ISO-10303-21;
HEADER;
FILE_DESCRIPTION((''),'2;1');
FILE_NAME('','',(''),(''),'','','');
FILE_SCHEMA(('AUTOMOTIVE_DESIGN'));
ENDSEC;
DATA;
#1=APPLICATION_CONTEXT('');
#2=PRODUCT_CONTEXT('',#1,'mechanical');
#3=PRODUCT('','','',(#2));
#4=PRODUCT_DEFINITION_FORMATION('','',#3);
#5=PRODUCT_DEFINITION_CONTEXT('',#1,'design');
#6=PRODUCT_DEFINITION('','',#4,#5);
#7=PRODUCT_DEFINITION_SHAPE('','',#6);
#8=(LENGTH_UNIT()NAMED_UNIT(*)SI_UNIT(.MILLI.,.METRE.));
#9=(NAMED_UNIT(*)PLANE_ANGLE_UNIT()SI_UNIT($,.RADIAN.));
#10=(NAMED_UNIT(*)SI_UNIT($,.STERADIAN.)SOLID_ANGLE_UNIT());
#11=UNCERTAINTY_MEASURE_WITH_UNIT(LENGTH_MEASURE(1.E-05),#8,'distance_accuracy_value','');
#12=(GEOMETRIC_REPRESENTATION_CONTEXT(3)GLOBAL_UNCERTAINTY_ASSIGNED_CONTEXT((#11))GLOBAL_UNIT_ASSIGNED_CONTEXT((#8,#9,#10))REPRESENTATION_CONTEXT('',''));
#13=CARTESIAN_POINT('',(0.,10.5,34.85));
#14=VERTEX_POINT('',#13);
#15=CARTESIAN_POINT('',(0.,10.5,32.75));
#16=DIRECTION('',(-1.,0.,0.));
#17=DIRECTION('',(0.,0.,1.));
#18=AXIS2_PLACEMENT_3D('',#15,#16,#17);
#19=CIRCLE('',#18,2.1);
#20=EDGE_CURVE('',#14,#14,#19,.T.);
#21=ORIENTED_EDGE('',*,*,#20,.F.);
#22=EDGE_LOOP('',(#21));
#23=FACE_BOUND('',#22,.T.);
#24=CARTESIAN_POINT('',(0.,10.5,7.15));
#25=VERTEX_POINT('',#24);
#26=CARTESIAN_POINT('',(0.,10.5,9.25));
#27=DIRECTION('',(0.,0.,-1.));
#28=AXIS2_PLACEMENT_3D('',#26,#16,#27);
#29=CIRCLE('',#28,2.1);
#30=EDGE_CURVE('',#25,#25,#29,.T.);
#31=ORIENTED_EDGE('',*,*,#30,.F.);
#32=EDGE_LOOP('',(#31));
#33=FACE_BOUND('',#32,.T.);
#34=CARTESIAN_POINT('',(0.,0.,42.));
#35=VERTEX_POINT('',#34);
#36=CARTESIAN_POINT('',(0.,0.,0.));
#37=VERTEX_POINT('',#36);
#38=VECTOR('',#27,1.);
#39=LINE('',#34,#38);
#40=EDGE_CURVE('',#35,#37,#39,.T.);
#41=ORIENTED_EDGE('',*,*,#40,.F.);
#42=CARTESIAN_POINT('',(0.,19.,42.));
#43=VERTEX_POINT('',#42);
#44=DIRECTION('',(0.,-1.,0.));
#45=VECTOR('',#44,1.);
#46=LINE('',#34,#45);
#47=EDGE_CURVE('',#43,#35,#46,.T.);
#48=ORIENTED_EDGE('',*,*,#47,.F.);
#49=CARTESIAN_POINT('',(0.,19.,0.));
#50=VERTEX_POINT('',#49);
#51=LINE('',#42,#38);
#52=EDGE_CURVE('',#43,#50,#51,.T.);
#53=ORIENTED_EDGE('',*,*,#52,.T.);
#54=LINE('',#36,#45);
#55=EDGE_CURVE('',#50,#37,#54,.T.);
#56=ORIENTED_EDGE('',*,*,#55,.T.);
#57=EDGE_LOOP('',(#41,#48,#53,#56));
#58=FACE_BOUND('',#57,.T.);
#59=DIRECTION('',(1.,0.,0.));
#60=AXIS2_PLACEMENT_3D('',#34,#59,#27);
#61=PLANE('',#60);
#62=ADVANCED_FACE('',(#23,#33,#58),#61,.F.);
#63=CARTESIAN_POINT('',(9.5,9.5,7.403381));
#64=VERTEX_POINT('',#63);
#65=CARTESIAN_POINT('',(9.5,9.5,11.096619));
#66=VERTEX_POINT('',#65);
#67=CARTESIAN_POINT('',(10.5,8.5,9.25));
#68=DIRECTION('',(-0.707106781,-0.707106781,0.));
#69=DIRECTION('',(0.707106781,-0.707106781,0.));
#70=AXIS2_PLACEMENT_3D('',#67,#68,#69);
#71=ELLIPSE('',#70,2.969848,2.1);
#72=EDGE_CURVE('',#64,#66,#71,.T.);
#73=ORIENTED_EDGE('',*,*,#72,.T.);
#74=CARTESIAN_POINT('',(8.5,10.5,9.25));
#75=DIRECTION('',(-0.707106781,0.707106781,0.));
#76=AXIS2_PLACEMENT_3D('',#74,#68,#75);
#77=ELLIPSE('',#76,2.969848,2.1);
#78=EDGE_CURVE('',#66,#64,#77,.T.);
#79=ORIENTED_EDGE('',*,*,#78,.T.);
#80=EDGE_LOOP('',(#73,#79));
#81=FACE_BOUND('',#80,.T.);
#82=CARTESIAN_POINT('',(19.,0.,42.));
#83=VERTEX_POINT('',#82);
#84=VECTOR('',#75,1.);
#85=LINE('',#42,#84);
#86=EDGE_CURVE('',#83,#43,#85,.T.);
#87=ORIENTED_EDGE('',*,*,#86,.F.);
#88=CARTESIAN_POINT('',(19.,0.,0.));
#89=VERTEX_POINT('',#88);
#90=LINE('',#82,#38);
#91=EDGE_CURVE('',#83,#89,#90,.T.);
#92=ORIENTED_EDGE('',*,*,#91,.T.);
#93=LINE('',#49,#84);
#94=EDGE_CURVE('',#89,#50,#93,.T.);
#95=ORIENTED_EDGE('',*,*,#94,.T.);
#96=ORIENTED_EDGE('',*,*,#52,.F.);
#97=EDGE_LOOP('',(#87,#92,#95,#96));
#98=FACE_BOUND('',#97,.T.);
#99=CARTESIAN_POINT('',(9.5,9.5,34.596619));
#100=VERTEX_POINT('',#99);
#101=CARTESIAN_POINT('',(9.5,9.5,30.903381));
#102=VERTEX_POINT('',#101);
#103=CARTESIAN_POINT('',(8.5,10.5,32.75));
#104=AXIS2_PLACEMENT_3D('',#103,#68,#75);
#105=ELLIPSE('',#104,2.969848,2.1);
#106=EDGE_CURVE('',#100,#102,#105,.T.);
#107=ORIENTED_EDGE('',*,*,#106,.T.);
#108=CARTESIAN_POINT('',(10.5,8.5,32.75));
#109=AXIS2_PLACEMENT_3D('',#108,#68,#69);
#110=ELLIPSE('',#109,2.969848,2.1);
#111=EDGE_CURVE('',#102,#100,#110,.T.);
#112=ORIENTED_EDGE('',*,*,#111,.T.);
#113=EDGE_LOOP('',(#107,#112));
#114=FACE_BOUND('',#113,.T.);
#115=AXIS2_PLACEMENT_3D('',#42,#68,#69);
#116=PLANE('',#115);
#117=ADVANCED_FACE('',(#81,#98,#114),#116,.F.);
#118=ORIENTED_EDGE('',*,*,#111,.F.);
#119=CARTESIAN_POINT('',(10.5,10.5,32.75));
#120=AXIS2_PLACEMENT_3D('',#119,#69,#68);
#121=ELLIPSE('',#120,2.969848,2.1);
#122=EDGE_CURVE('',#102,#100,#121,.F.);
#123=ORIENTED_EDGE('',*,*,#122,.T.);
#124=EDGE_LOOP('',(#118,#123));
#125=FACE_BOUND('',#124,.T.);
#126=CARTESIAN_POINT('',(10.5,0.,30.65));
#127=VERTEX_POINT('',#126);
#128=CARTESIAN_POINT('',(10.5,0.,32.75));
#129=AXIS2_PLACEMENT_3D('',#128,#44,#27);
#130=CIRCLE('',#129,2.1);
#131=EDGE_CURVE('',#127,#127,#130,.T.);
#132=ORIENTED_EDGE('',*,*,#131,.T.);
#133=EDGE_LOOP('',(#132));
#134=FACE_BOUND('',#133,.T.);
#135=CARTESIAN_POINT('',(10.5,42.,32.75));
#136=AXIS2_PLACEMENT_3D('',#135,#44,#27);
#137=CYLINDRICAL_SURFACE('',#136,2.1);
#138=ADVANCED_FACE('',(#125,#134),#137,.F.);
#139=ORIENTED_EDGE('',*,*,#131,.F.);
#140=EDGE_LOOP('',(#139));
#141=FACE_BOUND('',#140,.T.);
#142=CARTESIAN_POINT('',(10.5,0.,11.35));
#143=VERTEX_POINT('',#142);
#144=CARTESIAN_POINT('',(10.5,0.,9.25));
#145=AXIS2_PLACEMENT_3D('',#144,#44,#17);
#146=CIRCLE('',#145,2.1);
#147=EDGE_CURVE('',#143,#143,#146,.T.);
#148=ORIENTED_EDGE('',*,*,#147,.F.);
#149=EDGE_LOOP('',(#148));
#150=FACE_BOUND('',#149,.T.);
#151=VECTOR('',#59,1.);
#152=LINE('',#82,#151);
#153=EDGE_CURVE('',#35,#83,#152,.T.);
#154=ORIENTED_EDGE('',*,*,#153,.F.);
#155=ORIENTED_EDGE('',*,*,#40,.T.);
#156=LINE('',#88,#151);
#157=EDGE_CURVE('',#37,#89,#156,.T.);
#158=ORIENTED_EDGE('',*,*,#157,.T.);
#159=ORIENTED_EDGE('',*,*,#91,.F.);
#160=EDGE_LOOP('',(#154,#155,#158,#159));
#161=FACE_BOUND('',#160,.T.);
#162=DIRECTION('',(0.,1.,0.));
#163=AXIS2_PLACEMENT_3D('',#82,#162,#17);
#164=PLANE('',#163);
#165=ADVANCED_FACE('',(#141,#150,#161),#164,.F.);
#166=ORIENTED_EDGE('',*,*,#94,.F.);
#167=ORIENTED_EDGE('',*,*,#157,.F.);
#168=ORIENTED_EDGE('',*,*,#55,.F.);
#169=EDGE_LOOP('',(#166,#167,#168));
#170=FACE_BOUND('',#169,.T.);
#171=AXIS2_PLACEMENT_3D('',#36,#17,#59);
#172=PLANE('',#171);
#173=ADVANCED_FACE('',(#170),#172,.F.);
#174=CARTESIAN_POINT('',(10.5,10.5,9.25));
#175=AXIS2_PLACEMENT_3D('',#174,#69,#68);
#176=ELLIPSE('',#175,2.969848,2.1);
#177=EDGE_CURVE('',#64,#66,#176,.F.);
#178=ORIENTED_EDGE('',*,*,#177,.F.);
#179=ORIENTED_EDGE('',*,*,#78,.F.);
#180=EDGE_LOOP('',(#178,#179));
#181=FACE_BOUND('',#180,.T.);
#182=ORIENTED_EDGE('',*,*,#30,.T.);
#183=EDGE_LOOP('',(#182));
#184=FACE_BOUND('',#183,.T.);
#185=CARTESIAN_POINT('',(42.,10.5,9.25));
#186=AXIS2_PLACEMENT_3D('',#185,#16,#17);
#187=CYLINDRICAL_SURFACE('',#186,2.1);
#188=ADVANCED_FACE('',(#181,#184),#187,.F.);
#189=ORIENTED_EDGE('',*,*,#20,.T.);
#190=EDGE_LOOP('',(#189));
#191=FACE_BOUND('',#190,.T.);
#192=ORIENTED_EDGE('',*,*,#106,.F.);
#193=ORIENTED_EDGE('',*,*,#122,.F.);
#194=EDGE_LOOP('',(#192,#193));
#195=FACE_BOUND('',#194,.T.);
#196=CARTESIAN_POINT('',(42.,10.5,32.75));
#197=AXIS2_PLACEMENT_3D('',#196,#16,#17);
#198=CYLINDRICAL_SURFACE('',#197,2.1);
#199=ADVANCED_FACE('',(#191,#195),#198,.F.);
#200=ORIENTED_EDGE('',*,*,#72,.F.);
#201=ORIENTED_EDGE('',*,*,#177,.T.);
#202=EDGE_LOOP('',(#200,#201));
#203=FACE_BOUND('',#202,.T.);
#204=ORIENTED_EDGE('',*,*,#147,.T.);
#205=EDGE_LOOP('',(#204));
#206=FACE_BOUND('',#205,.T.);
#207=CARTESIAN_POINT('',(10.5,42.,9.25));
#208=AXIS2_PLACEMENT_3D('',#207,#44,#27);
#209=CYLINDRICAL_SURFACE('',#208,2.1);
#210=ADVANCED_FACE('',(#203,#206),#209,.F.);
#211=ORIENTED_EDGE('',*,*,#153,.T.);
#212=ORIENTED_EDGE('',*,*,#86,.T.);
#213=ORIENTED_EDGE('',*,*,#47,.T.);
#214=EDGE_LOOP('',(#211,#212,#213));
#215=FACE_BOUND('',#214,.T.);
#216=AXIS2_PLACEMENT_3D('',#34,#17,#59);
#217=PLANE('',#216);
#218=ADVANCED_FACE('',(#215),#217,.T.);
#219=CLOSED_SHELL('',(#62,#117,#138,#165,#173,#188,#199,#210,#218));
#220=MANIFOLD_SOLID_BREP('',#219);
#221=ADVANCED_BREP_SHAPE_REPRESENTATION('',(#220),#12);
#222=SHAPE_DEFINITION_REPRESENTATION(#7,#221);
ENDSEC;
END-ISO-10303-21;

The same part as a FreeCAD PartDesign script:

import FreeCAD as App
import Part
import Sketcher
from FreeCAD import Vector

doc = App.newDocument("Part")
body = doc.addObject("PartDesign::Body", "Body")

sketch1 = doc.addObject("Sketcher::SketchObject", "Sketch")
body.addObject(sketch1)
sketch1.AttachmentSupport = (doc.XY_Plane, [""])
sketch1.MapMode = "FlatFace"
sketch1.addGeometry(Part.LineSegment(Vector(0, 0, 0), Vector(19, 0, 0)), False)
sketch1.addGeometry(Part.LineSegment(Vector(19, 0, 0), Vector(0, 19, 0)), False)
sketch1.addGeometry(Part.LineSegment(Vector(0, 19, 0), Vector(0, 0, 0)), False)
sketch1.addConstraint(Sketcher.Constraint("Coincident", 0, 2, 1, 1))
sketch1.addConstraint(Sketcher.Constraint("Coincident", 1, 2, 2, 1))
sketch1.addConstraint(Sketcher.Constraint("Coincident", 2, 2, 0, 1))
sketch1.addConstraint(Sketcher.Constraint("Horizontal", 0))
sketch1.addConstraint(Sketcher.Constraint("Vertical", 2))
sketch1.addConstraint(Sketcher.Constraint("Coincident", 2, 2, -1, 1))
sketch1.addConstraint(Sketcher.Constraint("Equal", 0, 2))
sketch1.addConstraint(Sketcher.Constraint("DistanceX", 0, 1, 0, 2, 19.0))
pad1 = doc.addObject("PartDesign::Pad", "Pad")
body.addObject(pad1)
pad1.Profile = sketch1
pad1.Length = 42

sketch2 = doc.addObject("Sketcher::SketchObject", "Sketch001")
body.addObject(sketch2)
sketch2.AttachmentSupport = (doc.XZ_Plane, [""])
sketch2.MapMode = "FlatFace"
sketch2.addGeometry(Part.Circle(Vector(10.5, 32.8, 0), Vector(0, 0, 1), 2.1), False)
sketch2.addGeometry(Part.Circle(Vector(10.5, 9.2, 0), Vector(0, 0, 1), 2.1), False)
sketch2.addConstraint(Sketcher.Constraint("Equal", 0, 1))
sketch2.addConstraint(Sketcher.Constraint("Vertical", 0, 3, 1, 3))
sketch2.addConstraint(Sketcher.Constraint("Diameter", 0, 4.2))
sketch2.addConstraint(Sketcher.Constraint("DistanceX", -1, 1, 0, 3, 10.5))
sketch2.addConstraint(Sketcher.Constraint("DistanceY", 1, 3, 0, 3, 23.5))
sketch2.addConstraint(Sketcher.Constraint("DistanceY", -1, 1, 0, 3, 32.75))
pocket1 = doc.addObject("PartDesign::Pocket", "Pocket")
body.addObject(pocket1)
pocket1.Profile = sketch2
pocket1.Length = 42

sketch3 = doc.addObject("Sketcher::SketchObject", "Sketch002")
body.addObject(sketch3)
sketch3.AttachmentSupport = (doc.YZ_Plane, [""])
sketch3.MapMode = "FlatFace"
sketch3.addGeometry(Part.Circle(Vector(10.5, 32.8, 0), Vector(0, 0, 1), 2.1), False)
sketch3.addGeometry(Part.Circle(Vector(10.5, 9.2, 0), Vector(0, 0, 1), 2.1), False)
sketch3.addConstraint(Sketcher.Constraint("Equal", 0, 1))
sketch3.addConstraint(Sketcher.Constraint("Vertical", 0, 3, 1, 3))
sketch3.addConstraint(Sketcher.Constraint("Diameter", 0, 4.2))
sketch3.addConstraint(Sketcher.Constraint("DistanceX", -1, 1, 0, 3, 10.5))
sketch3.addConstraint(Sketcher.Constraint("DistanceY", 1, 3, 0, 3, 23.5))
sketch3.addConstraint(Sketcher.Constraint("DistanceY", -1, 1, 0, 3, 32.75))
pocket2 = doc.addObject("PartDesign::Pocket", "Pocket001")
body.addObject(pocket2)
pocket2.Profile = sketch3
pocket2.Length = 42
pocket2.Reversed = True

doc.recompute()
